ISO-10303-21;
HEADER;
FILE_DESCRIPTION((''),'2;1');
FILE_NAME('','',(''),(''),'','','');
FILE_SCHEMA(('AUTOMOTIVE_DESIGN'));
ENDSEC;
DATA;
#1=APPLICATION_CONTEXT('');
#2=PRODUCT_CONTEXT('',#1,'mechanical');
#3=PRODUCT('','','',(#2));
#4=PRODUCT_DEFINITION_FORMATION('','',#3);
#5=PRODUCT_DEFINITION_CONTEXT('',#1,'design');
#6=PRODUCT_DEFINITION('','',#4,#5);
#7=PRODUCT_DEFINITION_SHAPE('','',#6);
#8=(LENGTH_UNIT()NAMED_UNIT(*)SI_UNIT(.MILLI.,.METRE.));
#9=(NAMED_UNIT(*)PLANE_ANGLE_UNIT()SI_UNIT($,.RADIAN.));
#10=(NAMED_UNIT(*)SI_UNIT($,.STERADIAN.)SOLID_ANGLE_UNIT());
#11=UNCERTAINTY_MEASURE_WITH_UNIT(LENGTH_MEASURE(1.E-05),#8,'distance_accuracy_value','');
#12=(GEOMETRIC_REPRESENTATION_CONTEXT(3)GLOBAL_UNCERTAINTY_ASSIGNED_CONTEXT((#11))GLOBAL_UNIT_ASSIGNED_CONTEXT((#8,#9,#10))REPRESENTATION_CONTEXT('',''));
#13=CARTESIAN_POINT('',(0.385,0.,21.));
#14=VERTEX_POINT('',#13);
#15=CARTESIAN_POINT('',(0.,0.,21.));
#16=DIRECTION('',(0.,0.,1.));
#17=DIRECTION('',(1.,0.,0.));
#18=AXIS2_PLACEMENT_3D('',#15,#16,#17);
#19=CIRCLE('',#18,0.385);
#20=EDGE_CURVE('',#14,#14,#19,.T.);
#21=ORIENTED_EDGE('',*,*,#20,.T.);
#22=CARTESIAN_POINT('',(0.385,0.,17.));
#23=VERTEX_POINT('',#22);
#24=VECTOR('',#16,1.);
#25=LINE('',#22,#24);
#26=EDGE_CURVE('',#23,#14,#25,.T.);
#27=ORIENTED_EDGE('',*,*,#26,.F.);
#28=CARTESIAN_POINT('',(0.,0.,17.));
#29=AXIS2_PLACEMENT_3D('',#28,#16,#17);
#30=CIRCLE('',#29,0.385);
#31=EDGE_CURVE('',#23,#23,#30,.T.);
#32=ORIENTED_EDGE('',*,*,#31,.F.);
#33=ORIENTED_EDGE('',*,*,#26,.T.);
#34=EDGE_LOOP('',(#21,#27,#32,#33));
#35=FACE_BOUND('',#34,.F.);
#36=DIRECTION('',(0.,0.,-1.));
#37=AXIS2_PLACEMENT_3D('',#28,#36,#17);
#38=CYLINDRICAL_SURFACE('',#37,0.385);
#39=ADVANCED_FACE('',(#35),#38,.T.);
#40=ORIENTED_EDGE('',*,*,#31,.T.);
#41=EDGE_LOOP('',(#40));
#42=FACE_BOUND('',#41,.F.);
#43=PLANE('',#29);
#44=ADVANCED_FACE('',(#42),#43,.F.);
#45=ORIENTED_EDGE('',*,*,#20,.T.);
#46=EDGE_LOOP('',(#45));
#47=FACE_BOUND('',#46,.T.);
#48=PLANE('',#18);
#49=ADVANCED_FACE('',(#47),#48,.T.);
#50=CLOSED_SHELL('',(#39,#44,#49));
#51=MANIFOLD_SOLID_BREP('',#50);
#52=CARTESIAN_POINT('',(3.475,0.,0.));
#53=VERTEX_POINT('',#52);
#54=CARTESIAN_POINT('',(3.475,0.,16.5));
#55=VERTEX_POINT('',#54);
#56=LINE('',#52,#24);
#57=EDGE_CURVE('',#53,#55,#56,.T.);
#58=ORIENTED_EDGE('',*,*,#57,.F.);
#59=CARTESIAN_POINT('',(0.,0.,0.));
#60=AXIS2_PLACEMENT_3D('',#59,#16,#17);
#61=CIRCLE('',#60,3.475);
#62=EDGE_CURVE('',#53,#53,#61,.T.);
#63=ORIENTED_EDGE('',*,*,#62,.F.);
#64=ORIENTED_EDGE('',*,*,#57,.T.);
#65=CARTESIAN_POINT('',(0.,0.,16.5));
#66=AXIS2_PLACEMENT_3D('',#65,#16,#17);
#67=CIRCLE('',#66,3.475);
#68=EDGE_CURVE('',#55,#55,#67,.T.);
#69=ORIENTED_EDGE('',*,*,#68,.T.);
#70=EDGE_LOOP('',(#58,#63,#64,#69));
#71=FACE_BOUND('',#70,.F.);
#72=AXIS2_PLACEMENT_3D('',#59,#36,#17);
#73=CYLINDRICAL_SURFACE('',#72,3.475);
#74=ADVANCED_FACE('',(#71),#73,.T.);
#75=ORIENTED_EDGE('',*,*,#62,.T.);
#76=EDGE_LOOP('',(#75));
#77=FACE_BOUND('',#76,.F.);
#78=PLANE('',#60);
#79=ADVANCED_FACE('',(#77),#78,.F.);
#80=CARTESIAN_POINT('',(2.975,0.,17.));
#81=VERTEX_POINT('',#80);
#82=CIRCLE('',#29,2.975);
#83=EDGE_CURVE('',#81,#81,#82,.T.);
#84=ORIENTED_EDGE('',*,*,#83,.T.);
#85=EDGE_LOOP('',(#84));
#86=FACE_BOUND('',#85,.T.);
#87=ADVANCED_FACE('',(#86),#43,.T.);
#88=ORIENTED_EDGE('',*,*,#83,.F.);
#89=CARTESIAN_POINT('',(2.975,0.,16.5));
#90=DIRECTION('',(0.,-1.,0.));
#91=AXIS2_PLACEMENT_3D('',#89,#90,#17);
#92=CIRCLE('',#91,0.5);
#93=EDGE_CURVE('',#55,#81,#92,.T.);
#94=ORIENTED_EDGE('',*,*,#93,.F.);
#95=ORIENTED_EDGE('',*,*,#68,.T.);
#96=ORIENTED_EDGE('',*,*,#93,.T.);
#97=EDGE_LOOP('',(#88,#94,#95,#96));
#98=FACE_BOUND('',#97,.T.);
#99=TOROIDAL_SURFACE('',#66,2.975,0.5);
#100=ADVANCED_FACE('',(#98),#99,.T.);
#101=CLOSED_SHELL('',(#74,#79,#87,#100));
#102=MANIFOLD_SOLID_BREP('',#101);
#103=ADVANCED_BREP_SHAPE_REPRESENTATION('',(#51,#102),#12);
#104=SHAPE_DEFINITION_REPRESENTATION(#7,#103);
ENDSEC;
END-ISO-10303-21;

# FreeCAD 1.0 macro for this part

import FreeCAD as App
import Part
import Sketcher
from FreeCAD import Vector
Q = App.Units.Quantity


def edges_at(feature, points):
    """Names of the edges that pass closest to the given points."""
    edges = feature.Shape.Edges
    near = lambda p: min(range(len(edges)), key=lambda i: edges[i].distToShape(Part.Vertex(*p))[0])
    return sorted({f"Edge{near(p) + 1}" for p in points})

doc = App.newDocument("Part")
body = doc.addObject("PartDesign::Body", "Body")

# Sketch on XY plane
sketch1 = body.newObject("Sketcher::SketchObject", "Sketch")
sketch1.AttachmentSupport = (doc.getObject("XY_Plane"), [""])
sketch1.MapMode = "FlatFace"
sketch1.addGeometry(Part.Circle(Vector(0, 0, 0), Vector(0, 0, 1), 3.5), False)
sketch1.addConstraint([
    Sketcher.Constraint("Coincident", 0, 3, -1, 1),
    Sketcher.Constraint("Diameter", 0, Q("6.95 mm")),
])
pad1 = body.newObject("PartDesign::Pad", "Pad")
pad1.Profile = sketch1
pad1.Length = 17
doc.recompute()

fillet = body.newObject("PartDesign::Fillet", "Fillet")
fillet.Base = (pad1, edges_at(pad1, [(-3.475, 0, 17)]))
fillet.Radius = 0.5
body2 = doc.addObject("PartDesign::Body", "Body001")

# Sketch on XY plane
sketch2 = body2.newObject("Sketcher::SketchObject", "Sketch001")
sketch2.AttachmentSupport = (doc.getObject("XY_Plane001"), [""])
sketch2.MapMode = "FlatFace"
sketch2.AttachmentOffset = App.Placement(Vector(0, 0, 17), App.Rotation())
sketch2.addGeometry(Part.Circle(Vector(0, 0, 0), Vector(0, 0, 1), 0.39), False)
sketch2.addConstraint([
    Sketcher.Constraint("Coincident", 0, 3, -1, 1),
    Sketcher.Constraint("Diameter", 0, Q("0.77 mm")),
])
pad2 = body2.newObject("PartDesign::Pad", "Pad001")
pad2.Profile = sketch2
pad2.Length = 4

doc.recompute()
